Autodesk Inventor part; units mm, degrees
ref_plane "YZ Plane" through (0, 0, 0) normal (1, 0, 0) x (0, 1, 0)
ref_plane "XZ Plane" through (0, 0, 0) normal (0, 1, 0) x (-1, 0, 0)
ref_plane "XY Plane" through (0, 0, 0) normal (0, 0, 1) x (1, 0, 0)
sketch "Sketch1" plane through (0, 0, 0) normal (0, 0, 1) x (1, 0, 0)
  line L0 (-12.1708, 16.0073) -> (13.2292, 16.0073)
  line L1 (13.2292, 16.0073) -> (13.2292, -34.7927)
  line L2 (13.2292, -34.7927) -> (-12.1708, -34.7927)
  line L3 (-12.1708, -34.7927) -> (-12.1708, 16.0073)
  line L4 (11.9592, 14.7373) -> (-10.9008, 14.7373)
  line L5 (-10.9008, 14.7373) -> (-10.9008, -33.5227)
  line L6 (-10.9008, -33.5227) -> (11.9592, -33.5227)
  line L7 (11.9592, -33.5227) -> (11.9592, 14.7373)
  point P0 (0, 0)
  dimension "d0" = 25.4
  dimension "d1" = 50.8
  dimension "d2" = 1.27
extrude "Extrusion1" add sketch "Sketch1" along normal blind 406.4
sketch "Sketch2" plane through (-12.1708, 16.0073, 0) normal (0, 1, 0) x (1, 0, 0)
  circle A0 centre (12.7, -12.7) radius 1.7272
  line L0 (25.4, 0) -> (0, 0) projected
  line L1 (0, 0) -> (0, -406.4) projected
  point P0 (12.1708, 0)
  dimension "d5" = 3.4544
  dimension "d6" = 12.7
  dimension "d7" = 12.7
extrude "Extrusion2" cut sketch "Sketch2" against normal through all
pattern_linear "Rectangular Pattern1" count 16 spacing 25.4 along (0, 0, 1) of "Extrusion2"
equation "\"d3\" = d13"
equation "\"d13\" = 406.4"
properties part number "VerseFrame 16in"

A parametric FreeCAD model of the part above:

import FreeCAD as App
import Part
import Sketcher

V = App.Vector
Q = App.Units.Quantity

doc = App.newDocument("Part")
params = doc.addObject("Spreadsheet::Sheet", "Params")
for row, (alias, value) in enumerate([
    ("sketch1_width", "1 in"),
    ("sketch1_height", "2 in"),
    ("pad1_length", "16 in"),
    ("sketch2_diameter", "0.136 in"),
    ("linearpattern_pitch", "1 in"),
], start=1):
    params.set(f"A{row}", alias)
    params.set(f"B{row}", "=" + value)
    params.setAlias(f"B{row}", alias)

body = doc.addObject("PartDesign::Body", "Body")

# Sketch on XY plane
sketch1 = doc.addObject("Sketcher::SketchObject", "Sketch")
body.addObject(sketch1)
sketch1.AttachmentSupport = (doc.XY_Plane, [""])
sketch1.MapMode = "FlatFace"
sketch1.addGeometry([
    Part.LineSegment(V(13.2292, 16.0073, 0), V(-12.1708, 16.0073, 0)),  # 0
    Part.LineSegment(V(-12.1708, 16.0073, 0), V(-12.1708, -34.7927, 0)),  # 1
    Part.LineSegment(V(-12.1708, -34.7927, 0), V(13.2292, -34.7927, 0)),  # 2
    Part.LineSegment(V(13.2292, -34.7927, 0), V(13.2292, 16.0073, 0)),  # 3
    Part.LineSegment(V(-10.9008, 14.7373, 0), V(11.9592, 14.7373, 0)),  # 4
    Part.LineSegment(V(11.9592, 14.7373, 0), V(11.9592, -33.5227, 0)),  # 5
    Part.LineSegment(V(11.9592, -33.5227, 0), V(-10.9008, -33.5227, 0)),  # 6
    Part.LineSegment(V(-10.9008, -33.5227, 0), V(-10.9008, 14.7373, 0)),  # 7
], False)
sketch1.addConstraint([
    Sketcher.Constraint("Coincident", 0, 2, 1, 1),
    Sketcher.Constraint("Coincident", 1, 2, 2, 1),
    Sketcher.Constraint("Coincident", 2, 2, 3, 1),
    Sketcher.Constraint("Coincident", 3, 2, 0, 1),
    Sketcher.Constraint("Coincident", 4, 2, 5, 1),
    Sketcher.Constraint("Coincident", 5, 2, 6, 1),
    Sketcher.Constraint("Coincident", 6, 2, 7, 1),
    Sketcher.Constraint("Coincident", 7, 2, 4, 1),
    Sketcher.Constraint("Horizontal", 0),
    Sketcher.Constraint("Vertical", 1),
    Sketcher.Constraint("Horizontal", 2),
    Sketcher.Constraint("Vertical", 3),
    Sketcher.Constraint("Horizontal", 4),
    Sketcher.Constraint("Vertical", 5),
    Sketcher.Constraint("Horizontal", 6),
    Sketcher.Constraint("Vertical", 7),
    Sketcher.Constraint("DistanceX", 0, 2, 0, 1, Q("1 in")),
    Sketcher.Constraint("DistanceY", 1, 2, 1, 1, Q("2 in")),
    Sketcher.Constraint("DistanceX", 4, 2, 3, 2, Q("0.05 in")),
    Sketcher.Constraint("DistanceY", 4, 2, 3, 2, Q("0.05 in")),
    Sketcher.Constraint("DistanceY", 2, 2, 5, 2, Q("0.05 in")),
    Sketcher.Constraint("DistanceX", 1, 2, 6, 2, Q("0.05 in")),
    Sketcher.Constraint("DistanceY", -1, 1, 0, 2, Q("0.6302 in")),
    Sketcher.Constraint("DistanceX", 0, 2, -1, 1, Q("12.1708 mm")),
])
sketch1.setExpression("Constraints[16]", "Params.sketch1_width")
sketch1.setExpression("Constraints[17]", "Params.sketch1_height")
pad1 = doc.addObject("PartDesign::Pad", "Pad")
body.addObject(pad1)
pad1.Profile = sketch1
pad1.setExpression("Length", "Params.pad1_length")

# Sketch on XZ plane
sketch2 = doc.addObject("Sketcher::SketchObject", "Sketch001")
body.addObject(sketch2)
sketch2.AttachmentSupport = (doc.XZ_Plane, [""])
sketch2.MapMode = "FlatFace"
sketch2.AttachmentOffset = App.Placement(V(0, 0, -0.6302087 * 25.4), App.Rotation())
sketch2.addGeometry(Part.Circle(V(0.5292, 12.7, 0), V(0, 0, 1), 1.7272), False)
sketch2.addConstraint([
    Sketcher.Constraint("Diameter", 0, Q("0.136 in")),
    Sketcher.Constraint("DistanceY", -1, 1, 0, 3, Q("0.5 in")),
    Sketcher.Constraint("DistanceX", -1, 1, 0, 3, Q("0.5292 mm")),
])
sketch2.setExpression("Constraints[0]", "Params.sketch2_diameter")
pocket1 = doc.addObject("PartDesign::Pocket", "Pocket")
body.addObject(pocket1)
pocket1.Profile = sketch2
pocket1.Type = "ThroughAll"
pocket1.Reversed = True
doc.recompute()

linearpattern = doc.addObject("PartDesign::LinearPattern", "LinearPattern")
body.addObject(linearpattern)
linearpattern.Originals = [pocket1]
linearpattern.Direction = (doc.Z_Axis, [""])
linearpattern.Mode = "offset"
linearpattern.setExpression("Offset", "Params.linearpattern_pitch")
linearpattern.Occurrences = 16
body.Tip = linearpattern

doc.recompute()
